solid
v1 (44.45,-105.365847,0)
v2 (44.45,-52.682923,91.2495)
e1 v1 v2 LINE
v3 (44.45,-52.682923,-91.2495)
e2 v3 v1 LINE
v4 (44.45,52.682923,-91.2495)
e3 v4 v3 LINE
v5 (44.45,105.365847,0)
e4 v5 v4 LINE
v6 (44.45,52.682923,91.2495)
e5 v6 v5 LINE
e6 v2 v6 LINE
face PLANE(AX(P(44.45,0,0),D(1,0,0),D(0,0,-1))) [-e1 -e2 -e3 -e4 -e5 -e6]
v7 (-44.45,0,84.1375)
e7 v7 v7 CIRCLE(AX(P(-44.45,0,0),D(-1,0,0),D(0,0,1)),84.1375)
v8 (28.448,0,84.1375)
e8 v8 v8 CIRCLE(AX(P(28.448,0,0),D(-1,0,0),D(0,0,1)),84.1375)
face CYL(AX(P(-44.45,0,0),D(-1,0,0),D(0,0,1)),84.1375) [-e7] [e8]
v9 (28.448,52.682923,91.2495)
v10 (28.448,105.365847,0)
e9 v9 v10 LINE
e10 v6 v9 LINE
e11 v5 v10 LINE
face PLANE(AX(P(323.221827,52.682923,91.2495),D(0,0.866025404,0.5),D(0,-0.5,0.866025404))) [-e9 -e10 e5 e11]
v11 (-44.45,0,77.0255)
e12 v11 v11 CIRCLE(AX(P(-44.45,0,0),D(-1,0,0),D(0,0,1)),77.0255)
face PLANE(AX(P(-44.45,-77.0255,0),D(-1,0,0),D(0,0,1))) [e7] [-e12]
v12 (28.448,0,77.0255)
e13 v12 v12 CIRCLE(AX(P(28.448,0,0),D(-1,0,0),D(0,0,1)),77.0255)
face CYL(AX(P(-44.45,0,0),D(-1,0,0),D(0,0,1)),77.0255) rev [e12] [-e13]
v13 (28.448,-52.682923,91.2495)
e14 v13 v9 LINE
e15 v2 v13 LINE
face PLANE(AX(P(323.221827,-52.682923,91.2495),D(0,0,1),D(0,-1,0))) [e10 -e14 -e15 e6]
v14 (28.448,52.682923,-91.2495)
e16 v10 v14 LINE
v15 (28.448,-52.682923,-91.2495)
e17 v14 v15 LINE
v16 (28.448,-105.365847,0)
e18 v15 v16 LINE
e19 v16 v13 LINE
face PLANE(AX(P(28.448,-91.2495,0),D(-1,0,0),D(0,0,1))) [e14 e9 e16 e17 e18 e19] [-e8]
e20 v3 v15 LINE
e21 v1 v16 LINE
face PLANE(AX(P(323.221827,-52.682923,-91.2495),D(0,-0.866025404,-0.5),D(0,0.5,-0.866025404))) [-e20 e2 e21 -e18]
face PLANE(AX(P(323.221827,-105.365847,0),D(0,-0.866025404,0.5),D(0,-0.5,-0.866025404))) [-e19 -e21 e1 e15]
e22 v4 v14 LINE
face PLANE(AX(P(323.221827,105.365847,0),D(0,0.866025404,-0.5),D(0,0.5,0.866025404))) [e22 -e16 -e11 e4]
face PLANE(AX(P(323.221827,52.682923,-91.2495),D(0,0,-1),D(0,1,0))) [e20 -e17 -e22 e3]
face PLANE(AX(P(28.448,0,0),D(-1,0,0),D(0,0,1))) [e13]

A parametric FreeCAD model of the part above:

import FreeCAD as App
import Part
import Sketcher

V = App.Vector
Q = App.Units.Quantity

doc = App.newDocument("Part")
body = doc.addObject("PartDesign::Body", "Body")

# Sketch on XY plane
sketch1 = body.newObject("Sketcher::SketchObject", "Sketch")
sketch1.AttachmentSupport = (doc.getObject("XY_Plane"), [""])
sketch1.MapMode = "FlatFace"
sketch1.addGeometry([
    Part.LineSegment(V(-44.45, -84.1375, 0), V(28.448, -84.1375, 0)),  # 0
    Part.LineSegment(V(28.448, -84.1375, 0), V(28.448, -91.2495, 0)),  # 1
    Part.LineSegment(V(28.448, -91.2495, 0), V(44.45, -91.2495, 0)),  # 2
    Part.LineSegment(V(44.45, -91.2495, 0), V(44.45, 0, 0)),  # 3
    Part.LineSegment(V(44.45, 0, 0), V(28.448, 0, 0)),  # 4
    Part.LineSegment(V(28.448, 0, 0), V(28.448, -77.0255, 0)),  # 5
    Part.LineSegment(V(28.448, -77.0255, 0), V(-44.45, -77.0255, 0)),  # 6
    Part.LineSegment(V(-44.45, -77.0255, 0), V(-44.45, -84.1375, 0)),  # 7
], False)
sketch1.addConstraint([
    Sketcher.Constraint("Coincident", 0, 2, 1, 1),
    Sketcher.Constraint("Coincident", 1, 2, 2, 1),
    Sketcher.Constraint("Coincident", 2, 2, 3, 1),
    Sketcher.Constraint("Coincident", 3, 2, 4, 1),
    Sketcher.Constraint("Coincident", 4, 2, 5, 1),
    Sketcher.Constraint("Coincident", 5, 2, 6, 1),
    Sketcher.Constraint("Coincident", 6, 2, 7, 1),
    Sketcher.Constraint("Coincident", 7, 2, 0, 1),
    Sketcher.Constraint("Horizontal", 0),
    Sketcher.Constraint("Vertical", 1),
    Sketcher.Constraint("Horizontal", 2),
    Sketcher.Constraint("Vertical", 3),
    Sketcher.Constraint("Horizontal", 4),
    Sketcher.Constraint("Vertical", 5),
    Sketcher.Constraint("Horizontal", 6),
    Sketcher.Constraint("Vertical", 7),
    Sketcher.Constraint("PointOnObject", 3, 2, -1),
    Sketcher.Constraint("Vertical", 1, 2, 4, 2),
    Sketcher.Constraint("Equal", 1, 7),
    Sketcher.Constraint("DistanceX", 0, 1, 0, 2, Q("2.87 in")),
    Sketcher.Constraint("DistanceX", 2, 1, 2, 2, Q("0.63 in")),
    Sketcher.Constraint("DistanceY", 1, 2, 1, 1, Q("0.28 in")),
    Sketcher.Constraint("DistanceX", -1, 1, 0, 2, Q("1.12 in")),
    Sketcher.Constraint("DistanceY", 3, 1, 3, 2, Q("3.5925 in")),
])
revolution = body.newObject("PartDesign::Revolution", "Revolution")
revolution.Profile = sketch1
revolution.ReferenceAxis = (sketch1, ["H_Axis"])
revolution.Angle = 360

# Sketch on YZ plane
sketch2 = body.newObject("Sketcher::SketchObject", "Sketch001")
sketch2.AttachmentSupport = (doc.getObject("YZ_Plane"), [""])
sketch2.MapMode = "FlatFace"
sketch2.AttachmentOffset = App.Placement(V(0, 0, 1.12 * 25.4), App.Rotation())
sketch2.addGeometry([
    Part.LineSegment(V(52.682923, -91.2495, 0), V(-52.682923, -91.2495, 0)),  # 0
    Part.LineSegment(V(-52.682923, -91.2495, 0), V(-105.365847, 0, 0)),  # 1
    Part.LineSegment(V(-105.365847, 0, 0), V(-52.682923, 91.2495, 0)),  # 2
    Part.LineSegment(V(-52.682923, 91.2495, 0), V(52.682923, 91.2495, 0)),  # 3
    Part.LineSegment(V(52.682923, 91.2495, 0), V(105.365847, 0, 0)),  # 4
    Part.LineSegment(V(105.365847, 0, 0), V(52.682923, -91.2495, 0)),  # 5
], False)
sketch2.addConstraint([
    Sketcher.Constraint("Coincident", 0, 2, 1, 1),
    Sketcher.Constraint("Coincident", 1, 2, 2, 1),
    Sketcher.Constraint("Coincident", 2, 2, 3, 1),
    Sketcher.Constraint("Coincident", 3, 2, 4, 1),
    Sketcher.Constraint("Coincident", 4, 2, 5, 1),
    Sketcher.Constraint("Coincident", 5, 2, 0, 1),
    Sketcher.Constraint("Horizontal", 0),
    Sketcher.Constraint("Horizontal", 3),
    Sketcher.Constraint("Symmetric", 0, 2, 3, 2, -1, 1),
    Sketcher.Constraint("Symmetric", 1, 2, 4, 2, -1, 1),
    Sketcher.Constraint("PointOnObject", 1, 2, -1),
    Sketcher.Constraint("Parallel", 2, 5),
    Sketcher.Constraint("Vertical", 0, 2, 2, 2),
    Sketcher.Constraint("Angle", 1, Q("120 deg")),
    Sketcher.Constraint("DistanceY", 0, 2, 2, 2, Q("7.185 in")),
    Sketcher.Constraint("DistanceX", 0, 2, 0, 1, 105.365847),
])
pad1 = body.newObject("PartDesign::Pad", "Pad")
pad1.Profile = sketch2
pad1.Length = Q("0.63 in")

doc.recompute()
